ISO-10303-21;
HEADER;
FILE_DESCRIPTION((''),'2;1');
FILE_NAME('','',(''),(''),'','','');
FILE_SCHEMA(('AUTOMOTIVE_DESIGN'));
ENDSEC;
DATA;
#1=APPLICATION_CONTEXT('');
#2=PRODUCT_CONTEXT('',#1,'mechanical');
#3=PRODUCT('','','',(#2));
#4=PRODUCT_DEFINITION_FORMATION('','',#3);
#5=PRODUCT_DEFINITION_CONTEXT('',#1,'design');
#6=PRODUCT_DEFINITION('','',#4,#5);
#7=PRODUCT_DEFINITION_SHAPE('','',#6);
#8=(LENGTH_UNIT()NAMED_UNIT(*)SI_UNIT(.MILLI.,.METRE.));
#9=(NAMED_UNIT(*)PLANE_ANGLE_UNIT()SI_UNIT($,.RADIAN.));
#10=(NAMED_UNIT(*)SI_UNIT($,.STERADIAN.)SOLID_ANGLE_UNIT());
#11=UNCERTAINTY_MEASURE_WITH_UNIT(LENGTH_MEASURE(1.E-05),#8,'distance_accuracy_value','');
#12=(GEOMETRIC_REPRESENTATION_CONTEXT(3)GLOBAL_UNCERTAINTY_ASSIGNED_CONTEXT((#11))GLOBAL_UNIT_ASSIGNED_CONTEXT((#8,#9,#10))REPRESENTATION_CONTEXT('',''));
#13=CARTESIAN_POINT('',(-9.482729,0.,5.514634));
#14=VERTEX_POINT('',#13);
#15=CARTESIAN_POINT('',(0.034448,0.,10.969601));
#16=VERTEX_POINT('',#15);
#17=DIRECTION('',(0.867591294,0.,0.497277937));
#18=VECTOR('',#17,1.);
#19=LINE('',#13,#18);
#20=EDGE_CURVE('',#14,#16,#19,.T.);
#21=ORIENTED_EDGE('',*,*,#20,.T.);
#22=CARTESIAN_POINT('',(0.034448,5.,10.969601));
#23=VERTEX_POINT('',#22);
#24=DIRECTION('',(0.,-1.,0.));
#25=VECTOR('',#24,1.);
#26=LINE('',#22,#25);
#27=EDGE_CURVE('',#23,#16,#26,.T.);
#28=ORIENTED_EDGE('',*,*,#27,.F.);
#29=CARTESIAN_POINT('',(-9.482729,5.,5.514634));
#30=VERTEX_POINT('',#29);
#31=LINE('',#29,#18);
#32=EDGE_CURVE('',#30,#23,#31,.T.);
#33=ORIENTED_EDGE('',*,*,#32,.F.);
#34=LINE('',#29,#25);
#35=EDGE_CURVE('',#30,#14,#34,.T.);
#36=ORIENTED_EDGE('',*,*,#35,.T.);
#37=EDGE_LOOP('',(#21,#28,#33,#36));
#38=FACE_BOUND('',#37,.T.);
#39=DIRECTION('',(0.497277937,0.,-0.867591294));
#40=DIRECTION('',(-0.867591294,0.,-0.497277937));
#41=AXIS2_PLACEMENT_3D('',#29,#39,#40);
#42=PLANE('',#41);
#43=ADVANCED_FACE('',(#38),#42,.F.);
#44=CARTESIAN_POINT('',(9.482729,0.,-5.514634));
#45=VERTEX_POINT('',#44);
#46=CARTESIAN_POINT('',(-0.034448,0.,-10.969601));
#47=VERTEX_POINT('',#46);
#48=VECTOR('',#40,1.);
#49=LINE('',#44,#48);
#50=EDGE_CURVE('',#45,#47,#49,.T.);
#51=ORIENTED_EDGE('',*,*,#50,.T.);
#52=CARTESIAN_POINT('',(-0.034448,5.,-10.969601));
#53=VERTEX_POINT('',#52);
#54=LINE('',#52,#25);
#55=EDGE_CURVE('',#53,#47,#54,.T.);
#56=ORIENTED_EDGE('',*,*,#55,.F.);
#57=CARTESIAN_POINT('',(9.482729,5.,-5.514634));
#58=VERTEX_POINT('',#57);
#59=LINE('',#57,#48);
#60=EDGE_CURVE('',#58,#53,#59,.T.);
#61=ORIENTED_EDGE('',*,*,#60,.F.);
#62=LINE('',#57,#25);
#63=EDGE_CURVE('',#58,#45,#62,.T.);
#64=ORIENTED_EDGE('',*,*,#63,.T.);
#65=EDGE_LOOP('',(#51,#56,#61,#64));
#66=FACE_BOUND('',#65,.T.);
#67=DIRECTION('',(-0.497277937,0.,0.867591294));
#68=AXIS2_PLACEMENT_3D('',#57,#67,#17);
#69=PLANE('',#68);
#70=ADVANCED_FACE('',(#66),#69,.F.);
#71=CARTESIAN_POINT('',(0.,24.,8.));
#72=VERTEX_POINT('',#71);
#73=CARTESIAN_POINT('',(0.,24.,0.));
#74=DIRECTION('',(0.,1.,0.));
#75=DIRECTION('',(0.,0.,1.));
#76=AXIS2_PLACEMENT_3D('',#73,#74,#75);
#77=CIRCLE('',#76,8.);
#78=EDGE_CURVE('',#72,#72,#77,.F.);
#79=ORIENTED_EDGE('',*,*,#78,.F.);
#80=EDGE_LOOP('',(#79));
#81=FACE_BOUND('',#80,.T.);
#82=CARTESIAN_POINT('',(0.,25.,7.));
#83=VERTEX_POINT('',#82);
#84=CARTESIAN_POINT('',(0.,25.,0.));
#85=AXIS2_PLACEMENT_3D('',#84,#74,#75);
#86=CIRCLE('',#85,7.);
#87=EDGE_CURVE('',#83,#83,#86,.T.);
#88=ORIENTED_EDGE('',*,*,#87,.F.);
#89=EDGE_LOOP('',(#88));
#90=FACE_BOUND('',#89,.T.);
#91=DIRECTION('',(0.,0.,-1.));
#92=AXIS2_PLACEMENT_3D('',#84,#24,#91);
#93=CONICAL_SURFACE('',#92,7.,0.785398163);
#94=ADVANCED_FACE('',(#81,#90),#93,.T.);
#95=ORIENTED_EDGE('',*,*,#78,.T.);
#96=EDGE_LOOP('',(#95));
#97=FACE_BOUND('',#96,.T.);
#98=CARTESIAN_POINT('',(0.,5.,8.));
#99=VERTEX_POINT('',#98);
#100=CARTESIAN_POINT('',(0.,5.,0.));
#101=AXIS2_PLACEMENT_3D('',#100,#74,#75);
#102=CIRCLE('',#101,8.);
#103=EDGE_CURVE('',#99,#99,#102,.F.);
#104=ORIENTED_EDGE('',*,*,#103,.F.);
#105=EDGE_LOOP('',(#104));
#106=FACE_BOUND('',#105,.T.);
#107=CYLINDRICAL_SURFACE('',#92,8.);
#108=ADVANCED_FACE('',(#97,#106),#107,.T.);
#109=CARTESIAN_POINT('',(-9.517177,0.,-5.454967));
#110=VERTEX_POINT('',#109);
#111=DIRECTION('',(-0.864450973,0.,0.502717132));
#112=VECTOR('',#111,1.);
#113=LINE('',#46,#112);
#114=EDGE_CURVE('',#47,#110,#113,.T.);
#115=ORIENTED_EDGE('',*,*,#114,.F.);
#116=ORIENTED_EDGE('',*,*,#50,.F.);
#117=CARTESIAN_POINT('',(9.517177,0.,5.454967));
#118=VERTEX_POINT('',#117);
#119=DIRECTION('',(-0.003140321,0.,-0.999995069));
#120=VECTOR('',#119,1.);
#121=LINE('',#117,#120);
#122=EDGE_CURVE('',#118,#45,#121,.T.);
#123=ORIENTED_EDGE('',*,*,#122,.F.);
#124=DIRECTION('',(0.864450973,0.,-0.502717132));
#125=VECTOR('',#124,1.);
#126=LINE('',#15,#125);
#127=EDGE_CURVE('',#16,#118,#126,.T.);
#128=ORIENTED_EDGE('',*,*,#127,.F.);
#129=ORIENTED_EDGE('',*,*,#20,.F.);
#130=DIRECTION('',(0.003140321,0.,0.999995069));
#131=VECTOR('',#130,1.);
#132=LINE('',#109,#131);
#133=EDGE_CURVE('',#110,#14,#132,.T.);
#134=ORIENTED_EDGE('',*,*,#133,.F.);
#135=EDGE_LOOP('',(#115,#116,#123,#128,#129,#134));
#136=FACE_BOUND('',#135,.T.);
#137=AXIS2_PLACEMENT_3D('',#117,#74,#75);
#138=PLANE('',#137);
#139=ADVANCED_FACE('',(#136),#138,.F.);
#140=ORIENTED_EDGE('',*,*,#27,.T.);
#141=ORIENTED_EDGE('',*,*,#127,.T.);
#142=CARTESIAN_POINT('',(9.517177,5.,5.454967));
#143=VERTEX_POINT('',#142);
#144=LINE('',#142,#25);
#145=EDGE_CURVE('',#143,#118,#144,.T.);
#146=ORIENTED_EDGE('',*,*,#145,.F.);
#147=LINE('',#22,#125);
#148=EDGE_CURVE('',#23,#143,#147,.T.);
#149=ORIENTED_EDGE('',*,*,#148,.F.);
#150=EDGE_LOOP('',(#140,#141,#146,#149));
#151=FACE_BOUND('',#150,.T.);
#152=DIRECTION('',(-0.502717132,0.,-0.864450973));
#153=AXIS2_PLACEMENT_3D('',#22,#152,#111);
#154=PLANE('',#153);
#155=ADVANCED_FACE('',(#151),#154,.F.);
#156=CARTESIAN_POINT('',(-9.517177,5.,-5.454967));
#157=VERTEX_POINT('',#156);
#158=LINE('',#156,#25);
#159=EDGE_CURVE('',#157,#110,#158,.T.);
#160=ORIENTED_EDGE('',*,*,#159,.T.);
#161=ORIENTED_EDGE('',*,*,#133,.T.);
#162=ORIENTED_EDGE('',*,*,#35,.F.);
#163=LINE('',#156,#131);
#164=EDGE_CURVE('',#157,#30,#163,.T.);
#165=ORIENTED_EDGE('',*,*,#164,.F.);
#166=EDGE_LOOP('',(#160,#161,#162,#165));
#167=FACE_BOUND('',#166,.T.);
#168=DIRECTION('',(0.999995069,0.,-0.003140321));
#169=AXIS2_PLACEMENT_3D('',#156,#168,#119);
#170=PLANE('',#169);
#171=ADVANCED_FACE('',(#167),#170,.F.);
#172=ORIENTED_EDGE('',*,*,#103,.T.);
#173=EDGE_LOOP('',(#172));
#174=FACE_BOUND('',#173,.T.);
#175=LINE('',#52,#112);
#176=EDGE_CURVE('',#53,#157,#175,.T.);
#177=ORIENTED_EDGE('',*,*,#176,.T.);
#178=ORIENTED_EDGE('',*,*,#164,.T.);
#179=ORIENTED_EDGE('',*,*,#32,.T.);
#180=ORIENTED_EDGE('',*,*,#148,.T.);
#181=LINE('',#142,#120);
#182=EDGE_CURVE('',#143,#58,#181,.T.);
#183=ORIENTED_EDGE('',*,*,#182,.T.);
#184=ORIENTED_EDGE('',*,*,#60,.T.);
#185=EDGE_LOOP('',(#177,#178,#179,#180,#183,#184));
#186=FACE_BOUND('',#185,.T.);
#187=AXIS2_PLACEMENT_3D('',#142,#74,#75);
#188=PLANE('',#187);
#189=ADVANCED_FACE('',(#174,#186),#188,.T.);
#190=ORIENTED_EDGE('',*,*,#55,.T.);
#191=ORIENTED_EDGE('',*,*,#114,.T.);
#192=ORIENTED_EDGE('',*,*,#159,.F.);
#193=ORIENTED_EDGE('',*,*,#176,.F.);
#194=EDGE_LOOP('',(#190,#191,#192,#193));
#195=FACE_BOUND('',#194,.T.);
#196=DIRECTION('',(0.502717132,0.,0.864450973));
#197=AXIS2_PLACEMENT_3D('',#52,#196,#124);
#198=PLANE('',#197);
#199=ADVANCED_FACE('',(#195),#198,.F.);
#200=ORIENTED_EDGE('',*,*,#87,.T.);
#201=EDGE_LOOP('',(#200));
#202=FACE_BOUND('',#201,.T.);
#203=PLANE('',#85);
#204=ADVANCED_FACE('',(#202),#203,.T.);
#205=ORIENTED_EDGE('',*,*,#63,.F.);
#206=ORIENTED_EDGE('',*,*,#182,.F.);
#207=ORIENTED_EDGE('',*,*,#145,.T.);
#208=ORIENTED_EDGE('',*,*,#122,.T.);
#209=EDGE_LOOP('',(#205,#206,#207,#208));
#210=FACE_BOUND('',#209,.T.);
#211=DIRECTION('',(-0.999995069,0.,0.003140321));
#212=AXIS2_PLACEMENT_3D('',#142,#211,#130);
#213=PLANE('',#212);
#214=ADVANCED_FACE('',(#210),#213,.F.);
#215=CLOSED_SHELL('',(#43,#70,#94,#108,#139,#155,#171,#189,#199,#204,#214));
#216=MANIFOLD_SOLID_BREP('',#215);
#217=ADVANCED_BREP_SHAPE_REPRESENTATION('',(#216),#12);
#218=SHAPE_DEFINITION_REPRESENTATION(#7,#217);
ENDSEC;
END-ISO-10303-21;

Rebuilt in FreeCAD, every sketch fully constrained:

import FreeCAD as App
import Part
import Sketcher

V = App.Vector
Q = App.Units.Quantity


def edges_at(feature, points):
    """Names of the edges that pass closest to the given points."""
    edges = feature.Shape.Edges
    near = lambda p: min(range(len(edges)), key=lambda i: edges[i].distToShape(Part.Vertex(*p))[0])
    return sorted({f"Edge{near(p) + 1}" for p in points})

doc = App.newDocument("Part")
body = doc.addObject("PartDesign::Body", "Body")

# Sketch on XZ plane
sketch1 = body.newObject("Sketcher::SketchObject", "Sketch")
sketch1.AttachmentSupport = (doc.getObject("XZ_Plane"), [""])
sketch1.MapMode = "FlatFace"
sketch1.addGeometry(Part.LineSegment(V(10, 5, 0), V(9, -6, 0)), False)
sketch1.addGeometry(Part.LineSegment(V(9, -6, 0), V(0, -11, 0)), False)
sketch1.addGeometry(Part.LineSegment(V(0, -11, 0), V(-10, -5, 0)), False)
sketch1.addGeometry(Part.LineSegment(V(-10, -5, 0), V(-9, 6, 0)), False)
sketch1.addGeometry(Part.LineSegment(V(-9, 6, 0), V(0, 11, 0)), False)
sketch1.addGeometry(Part.LineSegment(V(0, 11, 0), V(10, 5, 0)), False)
sketch1.addConstraint(Sketcher.Constraint("Coincident", 0, 2, 1, 1))
sketch1.addConstraint(Sketcher.Constraint("Coincident", 1, 2, 2, 1))
sketch1.addConstraint(Sketcher.Constraint("Coincident", 2, 2, 3, 1))
sketch1.addConstraint(Sketcher.Constraint("Coincident", 3, 2, 4, 1))
sketch1.addConstraint(Sketcher.Constraint("Coincident", 4, 2, 5, 1))
sketch1.addConstraint(Sketcher.Constraint("Coincident", 5, 2, 0, 1))
sketch1.addConstraint(Sketcher.Constraint("Symmetric", 0, 2, 3, 2, -1, 1))
sketch1.addConstraint(Sketcher.Constraint("Symmetric", 1, 2, 4, 2, -1, 1))
sketch1.addConstraint(Sketcher.Constraint("Symmetric", 2, 2, 5, 2, -1, 1))
sketch1.addConstraint(Sketcher.Constraint("Equal", 0, 1))
sketch1.addConstraint(Sketcher.Constraint("Equal", 1, 2))
sketch1.addConstraint(Sketcher.Constraint("DistanceY", 1, 2, -1, 1, Q("10.969601 mm")))
sketch1.addConstraint(Sketcher.Constraint("DistanceY", 2, 2, 3, 2, Q("10.969601 mm")))
sketch1.addConstraint(Sketcher.Constraint("DistanceX", -1, 1, 0, 2, Q("9.482729 mm")))
sketch1.addConstraint(Sketcher.Constraint("DistanceX", 1, 2, -1, 1, Q("0.034448 mm")))
pad1 = body.newObject("PartDesign::Pad", "Pad")
pad1.Profile = sketch1
pad1.Length = 5
pad1.Reversed = True

# Sketch on XZ plane
sketch2 = body.newObject("Sketcher::SketchObject", "Sketch001")
sketch2.AttachmentSupport = (doc.getObject("XZ_Plane"), [""])
sketch2.MapMode = "FlatFace"
sketch2.addGeometry(Part.Circle(V(0, 0, 0), V(0, 0, 1), 8), False)
sketch2.addConstraint(Sketcher.Constraint("Coincident", 0, 3, -1, 1))
sketch2.addConstraint(Sketcher.Constraint("Diameter", 0, Q("16 mm")))
pad2 = body.newObject("PartDesign::Pad", "Pad001")
pad2.Profile = sketch2
pad2.Length = 25
pad2.Reversed = True
doc.recompute()

chamfer = body.newObject("PartDesign::Chamfer", "Chamfer")
chamfer.Base = (pad2, edges_at(pad2, [(-8, 25, 0)]))
chamfer.Size = 1

doc.recompute()
